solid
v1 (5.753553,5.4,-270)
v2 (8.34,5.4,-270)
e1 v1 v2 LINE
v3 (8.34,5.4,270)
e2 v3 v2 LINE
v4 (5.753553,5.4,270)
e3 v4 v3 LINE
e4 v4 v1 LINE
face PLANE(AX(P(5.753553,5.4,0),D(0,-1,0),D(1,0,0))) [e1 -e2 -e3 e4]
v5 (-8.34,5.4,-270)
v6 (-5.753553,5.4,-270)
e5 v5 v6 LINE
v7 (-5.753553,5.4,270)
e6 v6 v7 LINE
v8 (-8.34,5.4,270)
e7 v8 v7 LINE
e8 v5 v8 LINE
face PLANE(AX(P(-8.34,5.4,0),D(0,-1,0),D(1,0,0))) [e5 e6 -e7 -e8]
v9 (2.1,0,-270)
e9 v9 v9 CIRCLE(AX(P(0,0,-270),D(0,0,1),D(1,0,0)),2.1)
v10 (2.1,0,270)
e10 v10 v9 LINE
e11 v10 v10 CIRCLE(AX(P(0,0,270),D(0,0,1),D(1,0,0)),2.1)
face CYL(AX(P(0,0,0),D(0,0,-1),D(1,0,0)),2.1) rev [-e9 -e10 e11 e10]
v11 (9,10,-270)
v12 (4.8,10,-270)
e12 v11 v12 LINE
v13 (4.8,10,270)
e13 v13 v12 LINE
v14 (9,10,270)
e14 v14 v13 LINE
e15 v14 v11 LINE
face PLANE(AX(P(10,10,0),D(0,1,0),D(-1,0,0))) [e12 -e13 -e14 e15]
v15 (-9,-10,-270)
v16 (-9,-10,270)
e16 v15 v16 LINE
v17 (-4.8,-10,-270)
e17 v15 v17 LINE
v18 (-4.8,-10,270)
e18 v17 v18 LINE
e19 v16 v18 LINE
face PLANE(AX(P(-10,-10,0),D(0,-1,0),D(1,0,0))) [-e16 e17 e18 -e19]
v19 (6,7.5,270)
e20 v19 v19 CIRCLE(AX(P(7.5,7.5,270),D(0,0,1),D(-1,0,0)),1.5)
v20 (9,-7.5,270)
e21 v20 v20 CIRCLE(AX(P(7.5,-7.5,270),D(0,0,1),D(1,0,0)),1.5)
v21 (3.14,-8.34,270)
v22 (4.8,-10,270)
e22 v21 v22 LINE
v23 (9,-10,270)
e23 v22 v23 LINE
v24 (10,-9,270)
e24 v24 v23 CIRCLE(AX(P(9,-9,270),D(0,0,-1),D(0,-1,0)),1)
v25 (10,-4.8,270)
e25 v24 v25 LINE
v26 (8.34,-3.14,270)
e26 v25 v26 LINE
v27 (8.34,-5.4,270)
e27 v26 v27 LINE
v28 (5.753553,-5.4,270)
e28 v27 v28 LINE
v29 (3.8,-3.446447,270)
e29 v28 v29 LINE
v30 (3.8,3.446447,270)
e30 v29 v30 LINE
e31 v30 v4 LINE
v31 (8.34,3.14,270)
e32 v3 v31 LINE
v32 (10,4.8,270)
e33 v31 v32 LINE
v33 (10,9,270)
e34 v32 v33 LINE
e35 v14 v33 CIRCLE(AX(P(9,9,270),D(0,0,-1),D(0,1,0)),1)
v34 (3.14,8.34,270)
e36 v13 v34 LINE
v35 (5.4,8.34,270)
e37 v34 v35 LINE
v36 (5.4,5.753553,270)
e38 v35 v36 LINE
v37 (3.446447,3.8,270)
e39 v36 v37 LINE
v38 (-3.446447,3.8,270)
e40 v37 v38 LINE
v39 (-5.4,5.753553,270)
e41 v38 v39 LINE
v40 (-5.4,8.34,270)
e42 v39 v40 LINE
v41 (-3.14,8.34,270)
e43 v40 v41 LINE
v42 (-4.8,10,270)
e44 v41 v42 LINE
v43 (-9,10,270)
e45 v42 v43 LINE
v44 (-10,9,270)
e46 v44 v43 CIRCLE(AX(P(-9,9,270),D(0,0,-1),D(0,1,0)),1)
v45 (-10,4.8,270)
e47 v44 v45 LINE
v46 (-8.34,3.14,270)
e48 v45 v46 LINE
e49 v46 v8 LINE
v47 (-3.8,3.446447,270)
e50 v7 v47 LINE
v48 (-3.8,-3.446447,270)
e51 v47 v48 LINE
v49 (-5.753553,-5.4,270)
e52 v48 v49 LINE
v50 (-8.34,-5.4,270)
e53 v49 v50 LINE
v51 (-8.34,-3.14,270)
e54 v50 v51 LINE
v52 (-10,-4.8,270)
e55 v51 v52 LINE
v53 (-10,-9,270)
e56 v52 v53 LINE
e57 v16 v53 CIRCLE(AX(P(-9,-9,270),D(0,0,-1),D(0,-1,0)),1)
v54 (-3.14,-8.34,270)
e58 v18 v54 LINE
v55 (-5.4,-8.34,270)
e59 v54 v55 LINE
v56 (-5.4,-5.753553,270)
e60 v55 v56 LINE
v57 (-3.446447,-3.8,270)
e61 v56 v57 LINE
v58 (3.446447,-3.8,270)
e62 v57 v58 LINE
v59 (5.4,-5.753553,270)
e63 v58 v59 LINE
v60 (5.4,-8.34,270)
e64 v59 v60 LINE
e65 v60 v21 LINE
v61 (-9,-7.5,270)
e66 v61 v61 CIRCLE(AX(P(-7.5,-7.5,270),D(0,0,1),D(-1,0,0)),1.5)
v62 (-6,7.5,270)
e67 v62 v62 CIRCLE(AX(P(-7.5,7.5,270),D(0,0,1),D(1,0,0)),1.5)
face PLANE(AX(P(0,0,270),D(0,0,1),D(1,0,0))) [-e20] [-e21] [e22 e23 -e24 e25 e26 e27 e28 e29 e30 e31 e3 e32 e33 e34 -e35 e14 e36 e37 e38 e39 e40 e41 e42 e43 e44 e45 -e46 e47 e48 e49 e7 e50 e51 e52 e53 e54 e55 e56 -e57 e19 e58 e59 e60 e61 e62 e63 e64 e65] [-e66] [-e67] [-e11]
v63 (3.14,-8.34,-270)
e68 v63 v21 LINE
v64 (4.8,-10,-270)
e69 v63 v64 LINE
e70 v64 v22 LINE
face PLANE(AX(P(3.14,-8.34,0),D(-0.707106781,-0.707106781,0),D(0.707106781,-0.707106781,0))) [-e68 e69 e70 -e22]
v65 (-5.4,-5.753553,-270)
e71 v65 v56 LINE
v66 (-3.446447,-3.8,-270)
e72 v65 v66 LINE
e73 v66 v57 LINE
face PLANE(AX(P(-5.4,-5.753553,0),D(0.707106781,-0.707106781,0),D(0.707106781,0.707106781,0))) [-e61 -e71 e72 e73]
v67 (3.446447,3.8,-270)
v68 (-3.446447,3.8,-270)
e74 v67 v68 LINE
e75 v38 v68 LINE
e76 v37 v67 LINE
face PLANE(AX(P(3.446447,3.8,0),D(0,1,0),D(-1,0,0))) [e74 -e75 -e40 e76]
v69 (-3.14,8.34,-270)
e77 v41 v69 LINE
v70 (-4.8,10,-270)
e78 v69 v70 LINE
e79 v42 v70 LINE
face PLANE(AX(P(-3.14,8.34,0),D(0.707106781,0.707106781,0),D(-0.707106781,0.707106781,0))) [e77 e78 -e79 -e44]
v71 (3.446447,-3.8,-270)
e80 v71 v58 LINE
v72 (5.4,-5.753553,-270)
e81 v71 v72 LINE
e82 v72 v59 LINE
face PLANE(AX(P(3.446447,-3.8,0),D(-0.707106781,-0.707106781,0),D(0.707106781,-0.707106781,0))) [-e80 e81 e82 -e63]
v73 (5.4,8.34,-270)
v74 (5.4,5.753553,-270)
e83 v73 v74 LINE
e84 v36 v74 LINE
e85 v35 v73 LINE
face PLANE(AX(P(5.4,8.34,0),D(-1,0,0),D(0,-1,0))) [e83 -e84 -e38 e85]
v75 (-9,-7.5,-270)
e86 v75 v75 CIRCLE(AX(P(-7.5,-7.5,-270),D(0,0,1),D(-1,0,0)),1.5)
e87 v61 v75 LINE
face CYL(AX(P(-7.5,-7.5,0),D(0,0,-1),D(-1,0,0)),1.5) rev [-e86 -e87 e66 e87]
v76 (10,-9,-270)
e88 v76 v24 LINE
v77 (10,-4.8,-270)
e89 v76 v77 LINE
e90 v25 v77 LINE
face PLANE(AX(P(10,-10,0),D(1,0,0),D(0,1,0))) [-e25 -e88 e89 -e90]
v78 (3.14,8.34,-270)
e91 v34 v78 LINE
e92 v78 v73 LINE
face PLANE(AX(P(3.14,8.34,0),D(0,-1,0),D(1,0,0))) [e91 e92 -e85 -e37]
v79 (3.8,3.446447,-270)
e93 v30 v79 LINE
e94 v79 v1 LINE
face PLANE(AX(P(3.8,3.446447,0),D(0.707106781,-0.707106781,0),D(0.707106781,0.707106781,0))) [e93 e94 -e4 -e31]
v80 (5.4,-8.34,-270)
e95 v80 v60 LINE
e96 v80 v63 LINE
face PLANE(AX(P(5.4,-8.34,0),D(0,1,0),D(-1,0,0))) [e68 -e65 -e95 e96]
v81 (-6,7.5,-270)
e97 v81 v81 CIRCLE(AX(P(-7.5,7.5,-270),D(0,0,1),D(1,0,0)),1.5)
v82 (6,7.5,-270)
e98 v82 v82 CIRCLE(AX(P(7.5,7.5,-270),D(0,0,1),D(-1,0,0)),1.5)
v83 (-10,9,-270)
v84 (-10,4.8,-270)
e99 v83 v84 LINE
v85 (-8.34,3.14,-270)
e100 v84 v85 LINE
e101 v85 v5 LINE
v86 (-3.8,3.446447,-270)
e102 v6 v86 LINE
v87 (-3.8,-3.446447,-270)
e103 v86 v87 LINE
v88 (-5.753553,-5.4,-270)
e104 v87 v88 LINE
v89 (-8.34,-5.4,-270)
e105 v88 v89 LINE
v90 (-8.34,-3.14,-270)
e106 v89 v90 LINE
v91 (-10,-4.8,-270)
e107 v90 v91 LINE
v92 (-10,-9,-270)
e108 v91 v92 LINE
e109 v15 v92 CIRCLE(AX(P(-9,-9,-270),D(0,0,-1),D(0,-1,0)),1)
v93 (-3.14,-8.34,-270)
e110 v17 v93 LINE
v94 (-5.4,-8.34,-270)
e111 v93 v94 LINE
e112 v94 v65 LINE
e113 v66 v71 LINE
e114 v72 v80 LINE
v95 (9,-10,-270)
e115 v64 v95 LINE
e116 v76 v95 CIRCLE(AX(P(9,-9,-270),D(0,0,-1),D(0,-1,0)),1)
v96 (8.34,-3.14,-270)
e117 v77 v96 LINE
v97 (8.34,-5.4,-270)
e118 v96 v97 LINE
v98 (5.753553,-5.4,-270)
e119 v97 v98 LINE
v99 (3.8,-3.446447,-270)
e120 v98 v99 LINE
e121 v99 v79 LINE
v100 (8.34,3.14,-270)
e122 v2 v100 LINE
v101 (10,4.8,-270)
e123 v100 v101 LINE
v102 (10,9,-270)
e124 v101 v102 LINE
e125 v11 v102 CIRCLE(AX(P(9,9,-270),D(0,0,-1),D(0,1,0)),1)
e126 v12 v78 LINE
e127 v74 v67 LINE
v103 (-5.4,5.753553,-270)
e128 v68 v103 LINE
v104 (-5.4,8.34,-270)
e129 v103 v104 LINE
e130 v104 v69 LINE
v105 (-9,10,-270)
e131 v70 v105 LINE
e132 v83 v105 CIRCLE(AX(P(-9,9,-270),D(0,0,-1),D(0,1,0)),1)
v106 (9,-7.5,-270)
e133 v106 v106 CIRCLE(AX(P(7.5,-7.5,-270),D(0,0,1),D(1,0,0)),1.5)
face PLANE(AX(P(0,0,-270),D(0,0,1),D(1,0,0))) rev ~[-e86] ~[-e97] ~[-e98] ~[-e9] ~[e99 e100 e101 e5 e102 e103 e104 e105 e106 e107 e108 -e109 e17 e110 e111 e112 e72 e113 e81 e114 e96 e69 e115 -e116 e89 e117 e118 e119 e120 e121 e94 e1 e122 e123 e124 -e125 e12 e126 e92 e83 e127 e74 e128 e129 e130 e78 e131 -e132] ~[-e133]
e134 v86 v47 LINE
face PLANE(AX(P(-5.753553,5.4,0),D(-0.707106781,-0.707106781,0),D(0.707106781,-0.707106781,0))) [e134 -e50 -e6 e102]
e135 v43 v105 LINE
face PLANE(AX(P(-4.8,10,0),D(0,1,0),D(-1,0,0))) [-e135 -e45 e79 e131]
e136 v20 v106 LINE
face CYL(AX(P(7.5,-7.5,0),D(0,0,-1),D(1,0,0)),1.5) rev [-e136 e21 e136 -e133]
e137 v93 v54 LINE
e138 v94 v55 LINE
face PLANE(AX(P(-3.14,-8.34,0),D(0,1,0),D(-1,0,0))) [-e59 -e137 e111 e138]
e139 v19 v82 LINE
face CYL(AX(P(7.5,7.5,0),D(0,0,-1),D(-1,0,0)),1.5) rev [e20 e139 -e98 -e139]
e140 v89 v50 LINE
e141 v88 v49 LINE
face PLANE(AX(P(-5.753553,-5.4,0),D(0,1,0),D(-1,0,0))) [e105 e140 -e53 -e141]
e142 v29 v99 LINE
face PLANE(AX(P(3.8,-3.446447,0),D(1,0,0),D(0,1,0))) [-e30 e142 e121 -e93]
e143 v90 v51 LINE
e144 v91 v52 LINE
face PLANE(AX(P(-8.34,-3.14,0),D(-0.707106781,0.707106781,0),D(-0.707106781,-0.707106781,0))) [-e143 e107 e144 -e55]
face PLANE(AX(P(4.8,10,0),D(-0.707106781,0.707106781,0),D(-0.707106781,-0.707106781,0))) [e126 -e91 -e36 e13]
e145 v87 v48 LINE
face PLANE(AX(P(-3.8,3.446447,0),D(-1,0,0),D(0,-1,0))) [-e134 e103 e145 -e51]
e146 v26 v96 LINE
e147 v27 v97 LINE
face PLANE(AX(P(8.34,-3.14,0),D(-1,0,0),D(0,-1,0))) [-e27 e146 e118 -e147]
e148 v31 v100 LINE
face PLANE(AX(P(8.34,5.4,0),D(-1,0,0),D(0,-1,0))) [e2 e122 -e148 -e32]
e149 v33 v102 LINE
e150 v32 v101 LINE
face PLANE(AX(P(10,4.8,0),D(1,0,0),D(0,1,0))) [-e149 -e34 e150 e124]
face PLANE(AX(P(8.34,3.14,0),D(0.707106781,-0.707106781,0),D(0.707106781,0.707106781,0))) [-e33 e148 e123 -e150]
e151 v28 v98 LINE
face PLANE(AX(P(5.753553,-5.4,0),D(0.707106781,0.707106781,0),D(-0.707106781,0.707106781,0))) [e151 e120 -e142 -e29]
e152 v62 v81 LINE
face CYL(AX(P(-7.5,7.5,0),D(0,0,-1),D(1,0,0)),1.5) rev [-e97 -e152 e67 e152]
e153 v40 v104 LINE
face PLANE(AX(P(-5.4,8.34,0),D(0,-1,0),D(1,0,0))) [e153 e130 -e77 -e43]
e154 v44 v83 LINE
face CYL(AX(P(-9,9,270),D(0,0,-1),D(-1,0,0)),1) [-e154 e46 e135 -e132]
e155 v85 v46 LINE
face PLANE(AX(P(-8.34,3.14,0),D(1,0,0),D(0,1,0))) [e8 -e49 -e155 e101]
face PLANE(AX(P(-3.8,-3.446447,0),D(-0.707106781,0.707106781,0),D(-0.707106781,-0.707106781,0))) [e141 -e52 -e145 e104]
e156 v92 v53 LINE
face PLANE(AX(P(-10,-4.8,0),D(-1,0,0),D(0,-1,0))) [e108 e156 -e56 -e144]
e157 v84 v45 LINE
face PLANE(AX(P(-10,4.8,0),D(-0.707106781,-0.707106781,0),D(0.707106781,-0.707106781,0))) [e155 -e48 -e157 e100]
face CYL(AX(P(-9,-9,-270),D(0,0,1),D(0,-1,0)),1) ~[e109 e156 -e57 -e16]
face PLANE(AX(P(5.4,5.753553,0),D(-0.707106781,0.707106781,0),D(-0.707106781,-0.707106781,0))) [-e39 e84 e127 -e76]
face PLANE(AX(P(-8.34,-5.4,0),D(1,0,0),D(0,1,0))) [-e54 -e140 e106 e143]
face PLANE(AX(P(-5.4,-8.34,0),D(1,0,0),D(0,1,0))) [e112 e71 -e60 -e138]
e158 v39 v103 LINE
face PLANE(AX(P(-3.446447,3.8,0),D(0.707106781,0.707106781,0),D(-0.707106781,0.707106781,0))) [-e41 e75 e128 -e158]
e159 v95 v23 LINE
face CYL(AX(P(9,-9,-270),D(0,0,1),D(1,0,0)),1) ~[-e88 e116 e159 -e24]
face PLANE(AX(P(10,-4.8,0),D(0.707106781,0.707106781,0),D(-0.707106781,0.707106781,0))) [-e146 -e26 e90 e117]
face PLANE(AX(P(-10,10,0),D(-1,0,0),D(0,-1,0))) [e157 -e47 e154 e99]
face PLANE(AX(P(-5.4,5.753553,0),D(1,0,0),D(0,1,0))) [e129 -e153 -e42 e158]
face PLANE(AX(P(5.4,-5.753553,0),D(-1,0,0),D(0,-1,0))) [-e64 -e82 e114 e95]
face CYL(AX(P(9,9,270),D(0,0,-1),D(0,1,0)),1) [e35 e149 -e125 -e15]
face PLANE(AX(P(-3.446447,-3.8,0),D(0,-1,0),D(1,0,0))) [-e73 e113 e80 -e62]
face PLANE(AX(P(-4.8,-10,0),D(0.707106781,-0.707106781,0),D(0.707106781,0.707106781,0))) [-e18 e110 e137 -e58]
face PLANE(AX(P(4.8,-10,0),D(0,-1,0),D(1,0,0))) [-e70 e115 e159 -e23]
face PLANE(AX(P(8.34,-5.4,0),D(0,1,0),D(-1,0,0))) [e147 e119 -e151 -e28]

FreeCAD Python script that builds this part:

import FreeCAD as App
import Part
import Sketcher

V = App.Vector


def edges_at(feature, points):
    """Names of the edges that pass closest to the given points."""
    edges = feature.Shape.Edges
    near = lambda p: min(range(len(edges)), key=lambda i: edges[i].distToShape(Part.Vertex(*p))[0])
    return sorted({f"Edge{near(p) + 1}" for p in points})


def add_polygon(sketch, points):
    """Adds a closed chain of lines whose ends are joined by coincident constraints."""
    first, n = sketch.GeometryCount, len(points)
    for a, b in zip(points, points[1:] + points[:1]):
        sketch.addGeometry(Part.LineSegment(App.Vector(*a, 0), App.Vector(*b, 0)), False)
    for i in range(n):
        sketch.addConstraint(Sketcher.Constraint("Coincident", first + i, 2, first + (i + 1) % n, 1))

doc = App.newDocument("Part")
body = doc.addObject("PartDesign::Body", "Body")

# Sketch on XY plane
sketch1 = body.newObject("Sketcher::SketchObject", "Sketch")
sketch1.AttachmentSupport = (doc.getObject("XY_Plane"), [""])
sketch1.MapMode = "FlatFace"
add_polygon(sketch1, [(-10, 10), (-10, 4.8), (-8.3, 3.1), (-8.3, 5.4), (-5.8, 5.4), (-3.8, 3.4), (-3.8, -3.4), (-5.8, -5.4), (-8.3, -5.4), (-8.3, -3.1), (-10, -4.8), (-10, -10), (-4.8, -10), (-3.1, -8.3), (-5.4, -8.3), (-5.4, -5.8), (-3.4, -3.8), (3.4, -3.8), (5.4, -5.8), (5.4, -8.3), (3.1, -8.3), (4.8, -10), (10, -10), (10, -4.8), (8.3, -3.1), (8.3, -5.4), (5.8, -5.4), (3.8, -3.4), (3.8, 3.4), (5.8, 5.4), (8.3, 5.4), (8.3, 3.1), (10, 4.8), (10, 10), (4.8, 10), (3.1, 8.3), (5.4, 8.3), (5.4, 5.8), (3.4, 3.8), (-3.4, 3.8), (-5.4, 5.8), (-5.4, 8.3), (-3.1, 8.3), (-4.8, 10)])  # lines 0-43
sketch1.addGeometry(Part.Circle(V(-7.5, -7.5, 0), V(0, 0, 1), 1.5), False)  # 44
sketch1.addGeometry(Part.Circle(V(7.5, -7.5, 0), V(0, 0, 1), 1.5), False)  # 45
sketch1.addGeometry(Part.Circle(V(-7.5, 7.5, 0), V(0, 0, 1), 1.5), False)  # 46
sketch1.addGeometry(Part.Circle(V(0, 0, 0), V(0, 0, 1), 2.1), False)  # 47
sketch1.addGeometry(Part.Circle(V(7.5, 7.5, 0), V(0, 0, 1), 1.5), False)  # 48
sketch1.addConstraint([
    Sketcher.Constraint("Vertical", 0),
    Sketcher.Constraint("Vertical", 2),
    Sketcher.Constraint("Horizontal", 3),
    Sketcher.Constraint("Vertical", 5),
    Sketcher.Constraint("Horizontal", 7),
    Sketcher.Constraint("Vertical", 8),
    Sketcher.Constraint("Vertical", 10),
    Sketcher.Constraint("Horizontal", 11),
    Sketcher.Constraint("Horizontal", 13),
    Sketcher.Constraint("Vertical", 14),
    Sketcher.Constraint("Horizontal", 16),
    Sketcher.Constraint("Vertical", 18),
    Sketcher.Constraint("Horizontal", 19),
    Sketcher.Constraint("Horizontal", 21),
    Sketcher.Constraint("Vertical", 22),
    Sketcher.Constraint("Vertical", 24),
    Sketcher.Constraint("Horizontal", 25),
    Sketcher.Constraint("Vertical", 27),
    Sketcher.Constraint("Horizontal", 29),
    Sketcher.Constraint("Vertical", 30),
    Sketcher.Constraint("Vertical", 32),
    Sketcher.Constraint("Horizontal", 33),
    Sketcher.Constraint("Horizontal", 35),
    Sketcher.Constraint("Vertical", 36),
    Sketcher.Constraint("Horizontal", 38),
    Sketcher.Constraint("Vertical", 40),
    Sketcher.Constraint("Horizontal", 41),
    Sketcher.Constraint("Horizontal", 43),
    Sketcher.Constraint("Coincident", 47, 3, -1, 1),
    Sketcher.Constraint("Equal", 44, 45),
    Sketcher.Constraint("Equal", 45, 46),
    Sketcher.Constraint("Equal", 46, 48),
    Sketcher.Constraint("Symmetric", 45, 3, 46, 3, -1, 1),
    Sketcher.Constraint("Symmetric", 44, 3, 48, 3, -1, 1),
    Sketcher.Constraint("Symmetric", 0, 2, 22, 2, -1, 1),
    Sketcher.Constraint("Symmetric", 1, 2, 23, 2, -1, 1),
    Sketcher.Constraint("Symmetric", 3, 2, 25, 2, -1, 1),
    Sketcher.Constraint("Symmetric", 4, 2, 26, 2, -1, 1),
    Sketcher.Constraint("Symmetric", 6, 2, 28, 2, -1, 1),
    Sketcher.Constraint("Symmetric", 8, 2, 30, 2, -1, 1),
    Sketcher.Constraint("Symmetric", 9, 2, 31, 2, -1, 1),
    Sketcher.Constraint("Symmetric", 11, 2, 33, 2, -1, 1),
    Sketcher.Constraint("Symmetric", 12, 2, 34, 2, -1, 1),
    Sketcher.Constraint("Symmetric", 14, 2, 36, 2, -1, 1),
    Sketcher.Constraint("Symmetric", 15, 2, 37, 2, -1, 1),
    Sketcher.Constraint("Symmetric", 17, 2, 39, 2, -1, 1),
    Sketcher.Constraint("Symmetric", 19, 2, 41, 2, -1, 1),
    Sketcher.Constraint("Symmetric", 20, 2, 42, 2, -1, 1),
    Sketcher.Constraint("Symmetric", 44, 3, 45, 3, -2),
    Sketcher.Constraint("Symmetric", 14, 2, 17, 2, -2),
    Sketcher.Constraint("Symmetric", 12, 2, 19, 2, -2),
    Sketcher.Constraint("Symmetric", 11, 2, 20, 2, -2),
    Sketcher.Constraint("Symmetric", 9, 2, 22, 2, -2),
    Sketcher.Constraint("Symmetric", 8, 2, 23, 2, -2),
    Sketcher.Constraint("Symmetric", 6, 2, 25, 2, -2),
    Sketcher.Constraint("Parallel", 1, 4),
    Sketcher.Constraint("Perpendicular", 4, 6),
    Sketcher.Constraint("Parallel", 6, 9),
    Sketcher.Constraint("Parallel", 9, 12),
    Sketcher.Constraint("Parallel", 12, 15),
    Sketcher.Constraint("Perpendicular", 15, 17),
    Sketcher.Constraint("Perpendicular", 26, 28),
    Sketcher.Constraint("Perpendicular", 37, 39),
    Sketcher.Constraint("Equal", 43, 0),
    Sketcher.Constraint("Equal", 41, 2),
    Sketcher.Constraint("Equal", 38, 5),
    Sketcher.Constraint("Equal", 29, 14),
    Sketcher.Constraint("Equal", 9, 12),
    Sketcher.Constraint("Equal", 6, 15),
    Sketcher.Constraint("Diameter", 44, 3.0),
    Sketcher.Constraint("Diameter", 47, 4.2),
    Sketcher.Constraint("DistanceX", 11, 1, 11, 2, 5.2),
    Sketcher.Constraint("DistanceX", 0, 2, -1, 1, 10.0),
    Sketcher.Constraint("DistanceX", 44, 3, 45, 3, 15.0),
    Sketcher.Constraint("DistanceY", 44, 3, 46, 3, 15.0),
    Sketcher.Constraint("DistanceX", 11, 2, 5, 2, 1.0),
    Sketcher.Constraint("DistanceX", 13, 2, 13, 1, 2.26),
    Sketcher.Constraint("DistanceY", -1, 1, 2, 2, 5.4),
    Sketcher.Constraint("Distance", 4, 2.762742),
])
pad1 = body.newObject("PartDesign::Pad", "Pad")
pad1.Profile = sketch1
pad1.Length = 540
pad1.Midplane = True
doc.recompute()

fillet = body.newObject("PartDesign::Fillet", "Fillet")
fillet.Base = (pad1, edges_at(pad1, [
    (10, 10, 0),
    (10, -10, 0),
    (-10, -10, 0),
    (-10, 10, 0),
]))
fillet.Radius = 1

doc.recompute()
